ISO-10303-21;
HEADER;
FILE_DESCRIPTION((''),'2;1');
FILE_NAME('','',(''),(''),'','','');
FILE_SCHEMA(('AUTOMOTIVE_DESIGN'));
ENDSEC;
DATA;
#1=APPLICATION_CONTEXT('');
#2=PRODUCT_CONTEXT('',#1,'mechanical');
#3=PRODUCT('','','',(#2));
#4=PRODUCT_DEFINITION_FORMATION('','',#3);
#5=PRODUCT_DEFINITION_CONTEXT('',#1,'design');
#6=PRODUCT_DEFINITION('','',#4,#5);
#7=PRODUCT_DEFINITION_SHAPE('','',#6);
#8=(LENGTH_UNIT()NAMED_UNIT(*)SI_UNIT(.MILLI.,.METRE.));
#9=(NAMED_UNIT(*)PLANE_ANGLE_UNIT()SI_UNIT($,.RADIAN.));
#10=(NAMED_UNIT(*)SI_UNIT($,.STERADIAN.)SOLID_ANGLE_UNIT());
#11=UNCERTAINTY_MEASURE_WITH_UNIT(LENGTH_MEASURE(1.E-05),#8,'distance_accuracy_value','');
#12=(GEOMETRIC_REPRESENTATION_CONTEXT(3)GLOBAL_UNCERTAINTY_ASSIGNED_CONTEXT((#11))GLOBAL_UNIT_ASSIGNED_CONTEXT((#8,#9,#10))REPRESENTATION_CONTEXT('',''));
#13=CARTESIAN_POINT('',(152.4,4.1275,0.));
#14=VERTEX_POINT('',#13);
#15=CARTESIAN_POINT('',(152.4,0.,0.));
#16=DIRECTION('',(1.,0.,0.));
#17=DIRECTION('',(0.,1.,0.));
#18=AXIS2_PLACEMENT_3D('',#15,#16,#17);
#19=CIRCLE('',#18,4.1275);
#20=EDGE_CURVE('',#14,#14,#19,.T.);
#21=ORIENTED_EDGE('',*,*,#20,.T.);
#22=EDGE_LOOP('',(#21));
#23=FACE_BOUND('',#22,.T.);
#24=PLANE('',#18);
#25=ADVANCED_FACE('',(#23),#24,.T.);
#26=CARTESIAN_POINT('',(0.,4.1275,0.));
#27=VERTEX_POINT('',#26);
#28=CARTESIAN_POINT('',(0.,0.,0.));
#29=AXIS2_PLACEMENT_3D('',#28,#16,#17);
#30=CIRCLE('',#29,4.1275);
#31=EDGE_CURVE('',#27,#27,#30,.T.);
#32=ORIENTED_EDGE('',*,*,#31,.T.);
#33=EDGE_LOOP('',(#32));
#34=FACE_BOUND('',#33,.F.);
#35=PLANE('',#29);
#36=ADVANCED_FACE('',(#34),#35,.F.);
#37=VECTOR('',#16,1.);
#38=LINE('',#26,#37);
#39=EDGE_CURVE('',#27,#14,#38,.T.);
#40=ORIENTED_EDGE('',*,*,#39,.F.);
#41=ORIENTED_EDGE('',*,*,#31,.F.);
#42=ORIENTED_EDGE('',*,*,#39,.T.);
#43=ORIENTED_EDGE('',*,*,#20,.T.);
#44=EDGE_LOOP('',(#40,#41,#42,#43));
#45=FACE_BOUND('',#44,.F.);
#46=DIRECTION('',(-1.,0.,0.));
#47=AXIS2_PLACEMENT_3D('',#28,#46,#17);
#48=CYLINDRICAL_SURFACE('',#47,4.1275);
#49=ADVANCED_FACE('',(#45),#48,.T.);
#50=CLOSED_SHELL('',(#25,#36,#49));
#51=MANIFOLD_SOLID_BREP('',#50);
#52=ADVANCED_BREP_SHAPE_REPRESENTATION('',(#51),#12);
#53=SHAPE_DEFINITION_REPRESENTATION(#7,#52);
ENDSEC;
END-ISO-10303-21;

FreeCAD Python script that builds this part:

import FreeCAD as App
import Part
import Sketcher

V = App.Vector
Q = App.Units.Quantity

doc = App.newDocument("Part")
body = doc.addObject("PartDesign::Body", "Body")

sketch1 = body.newObject("Sketcher::SketchObject", "Sketch")
sketch1.AttachmentSupport = (doc.getObject("YZ_Plane"), [""])
sketch1.MapMode = "FlatFace"
sketch1.addGeometry(Part.Circle(V(0, 0, 0), V(0, 0, 1), 4.1), False)
sketch1.addConstraint(Sketcher.Constraint("Coincident", 0, 3, -1, 1))
sketch1.addConstraint(Sketcher.Constraint("Diameter", 0, Q("0.325 in")))
pad1 = body.newObject("PartDesign::Pad", "Pad")
pad1.Profile = sketch1
pad1.Length = Q("6 in")

doc.recompute()
